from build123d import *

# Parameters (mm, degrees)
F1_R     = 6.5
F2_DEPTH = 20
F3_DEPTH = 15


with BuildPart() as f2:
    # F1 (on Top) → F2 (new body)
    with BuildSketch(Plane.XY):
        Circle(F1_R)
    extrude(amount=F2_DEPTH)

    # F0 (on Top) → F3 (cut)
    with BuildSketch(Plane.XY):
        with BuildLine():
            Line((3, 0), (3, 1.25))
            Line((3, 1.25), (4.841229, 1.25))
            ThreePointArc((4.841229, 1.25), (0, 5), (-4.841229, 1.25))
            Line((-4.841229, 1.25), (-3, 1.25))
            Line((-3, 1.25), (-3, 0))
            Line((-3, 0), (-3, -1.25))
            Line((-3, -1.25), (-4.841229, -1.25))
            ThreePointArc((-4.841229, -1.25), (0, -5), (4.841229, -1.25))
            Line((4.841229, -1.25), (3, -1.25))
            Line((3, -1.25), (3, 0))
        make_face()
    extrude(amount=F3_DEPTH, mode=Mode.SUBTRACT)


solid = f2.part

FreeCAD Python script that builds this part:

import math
import FreeCAD as App
import Part
import Sketcher
from FreeCAD import Vector
Q = App.Units.Quantity

doc = App.newDocument("Part")
body = doc.addObject("PartDesign::Body", "Body")

# Sketch on XY plane
sketch1 = body.newObject("Sketcher::SketchObject", "Sketch")
sketch1.AttachmentSupport = (doc.getObject("XY_Plane"), [""])
sketch1.MapMode = "FlatFace"
sketch1.addGeometry(Part.Circle(Vector(0, 0, 0), Vector(0, 0, 1), 6), False)
sketch1.addConstraint(Sketcher.Constraint("Coincident", 0, 3, -1, 1))
sketch1.addConstraint(Sketcher.Constraint("Diameter", 0, Q("13 mm")))
pad1 = body.newObject("PartDesign::Pad", "Pad")
pad1.Profile = sketch1
pad1.Length = 20

# Sketch on XY plane
sketch2 = body.newObject("Sketcher::SketchObject", "Sketch001")
sketch2.AttachmentSupport = (doc.getObject("XY_Plane"), [""])
sketch2.MapMode = "FlatFace"
sketch2.addGeometry(Part.LineSegment(Vector(3, 1.2, 0), Vector(4.8, 1.2, 0)), False)
sketch2.addGeometry(Part.ArcOfCircle(Part.Circle(Vector(0, 0, 0), Vector(0, 0, 1), 5), math.radians(14), math.radians(166)), False)
sketch2.addGeometry(Part.LineSegment(Vector(-4.8, 1.2, 0), Vector(-3, 1.2, 0)), False)
sketch2.addGeometry(Part.LineSegment(Vector(-3, 1.2, 0), Vector(-3, -1.2, 0)), False)
sketch2.addGeometry(Part.LineSegment(Vector(-3, -1.2, 0), Vector(-4.8, -1.2, 0)), False)
sketch2.addGeometry(Part.ArcOfCircle(Part.Circle(Vector(0, 0, 0), Vector(0, 0, 1), 5), math.radians(-166), math.radians(-14)), False)
sketch2.addGeometry(Part.LineSegment(Vector(4.8, -1.2, 0), Vector(3, -1.2, 0)), False)
sketch2.addGeometry(Part.LineSegment(Vector(3, -1.2, 0), Vector(3, 1.2, 0)), False)
sketch2.addConstraint(Sketcher.Constraint("Coincident", 0, 2, 1, 1))
sketch2.addConstraint(Sketcher.Constraint("Coincident", 1, 2, 2, 1))
sketch2.addConstraint(Sketcher.Constraint("Coincident", 2, 2, 3, 1))
sketch2.addConstraint(Sketcher.Constraint("Coincident", 3, 2, 4, 1))
sketch2.addConstraint(Sketcher.Constraint("Coincident", 4, 2, 5, 1))
sketch2.addConstraint(Sketcher.Constraint("Coincident", 5, 2, 6, 1))
sketch2.addConstraint(Sketcher.Constraint("Coincident", 6, 2, 7, 1))
sketch2.addConstraint(Sketcher.Constraint("Coincident", 7, 2, 0, 1))
sketch2.addConstraint(Sketcher.Constraint("Horizontal", 0))
sketch2.addConstraint(Sketcher.Constraint("Horizontal", 2))
sketch2.addConstraint(Sketcher.Constraint("Vertical", 3))
sketch2.addConstraint(Sketcher.Constraint("Horizontal", 4))
sketch2.addConstraint(Sketcher.Constraint("Horizontal", 6))
sketch2.addConstraint(Sketcher.Constraint("Vertical", 7))
sketch2.addConstraint(Sketcher.Constraint("Coincident", 1, 3, -1, 1))
sketch2.addConstraint(Sketcher.Constraint("Coincident", 5, 3, -1, 1))
sketch2.addConstraint(Sketcher.Constraint("Equal", 1, 5))
sketch2.addConstraint(Sketcher.Constraint("Symmetric", 2, 2, 6, 2, -1, 1))
sketch2.addConstraint(Sketcher.Constraint("Horizontal", 0, 2, 1, 2))
sketch2.addConstraint(Sketcher.Constraint("Horizontal", 4, 2, 5, 2))
sketch2.addConstraint(Sketcher.Constraint("Radius", 1, Q("5 mm")))
sketch2.addConstraint(Sketcher.Constraint("DistanceY", 3, 2, 3, 1, Q("2.5 mm")))
sketch2.addConstraint(Sketcher.Constraint("DistanceX", 2, 2, -1, 1, Q("3 mm")))
pocket1 = body.newObject("PartDesign::Pocket", "Pocket")
pocket1.Profile = sketch2
pocket1.Length = 15
pocket1.Reversed = True

doc.recompute()
